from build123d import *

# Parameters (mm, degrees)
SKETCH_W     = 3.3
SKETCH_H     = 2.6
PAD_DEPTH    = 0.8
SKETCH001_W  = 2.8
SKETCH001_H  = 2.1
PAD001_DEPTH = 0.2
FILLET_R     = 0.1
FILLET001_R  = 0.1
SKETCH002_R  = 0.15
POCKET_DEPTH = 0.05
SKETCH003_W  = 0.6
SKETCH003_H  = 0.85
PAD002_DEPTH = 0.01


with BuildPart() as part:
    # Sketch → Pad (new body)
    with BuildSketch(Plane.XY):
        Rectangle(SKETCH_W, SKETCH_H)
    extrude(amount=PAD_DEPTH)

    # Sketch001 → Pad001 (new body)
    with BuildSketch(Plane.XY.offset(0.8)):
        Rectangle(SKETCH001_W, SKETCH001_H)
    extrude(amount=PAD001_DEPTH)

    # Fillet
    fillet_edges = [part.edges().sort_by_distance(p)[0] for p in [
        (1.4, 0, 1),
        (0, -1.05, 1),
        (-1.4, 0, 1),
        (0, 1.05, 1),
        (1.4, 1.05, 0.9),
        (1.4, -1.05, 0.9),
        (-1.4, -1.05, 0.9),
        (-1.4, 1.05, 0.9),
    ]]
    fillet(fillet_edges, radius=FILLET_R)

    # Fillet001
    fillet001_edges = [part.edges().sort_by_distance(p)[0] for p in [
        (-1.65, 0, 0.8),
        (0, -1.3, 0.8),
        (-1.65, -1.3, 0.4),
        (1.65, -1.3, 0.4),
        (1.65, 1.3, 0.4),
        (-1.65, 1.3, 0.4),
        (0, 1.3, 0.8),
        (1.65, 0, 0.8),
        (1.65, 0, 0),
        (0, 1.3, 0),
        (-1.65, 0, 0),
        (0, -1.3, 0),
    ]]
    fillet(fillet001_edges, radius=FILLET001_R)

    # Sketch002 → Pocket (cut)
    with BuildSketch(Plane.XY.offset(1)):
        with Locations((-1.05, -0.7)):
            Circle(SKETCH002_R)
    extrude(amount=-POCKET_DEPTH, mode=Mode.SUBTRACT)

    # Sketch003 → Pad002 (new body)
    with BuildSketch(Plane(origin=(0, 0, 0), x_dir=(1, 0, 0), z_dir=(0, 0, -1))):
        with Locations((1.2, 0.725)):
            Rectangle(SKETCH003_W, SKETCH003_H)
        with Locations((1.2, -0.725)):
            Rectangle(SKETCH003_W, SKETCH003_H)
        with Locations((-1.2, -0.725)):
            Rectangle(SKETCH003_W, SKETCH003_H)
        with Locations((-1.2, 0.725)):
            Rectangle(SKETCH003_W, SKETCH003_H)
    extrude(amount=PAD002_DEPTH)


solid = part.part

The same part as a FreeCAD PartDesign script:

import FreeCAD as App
import Part
import Sketcher


def edges_at(feature, points):
    """Names of the edges that pass closest to the given points."""
    edges = feature.Shape.Edges
    near = lambda p: min(range(len(edges)), key=lambda i: edges[i].distToShape(Part.Vertex(*p))[0])
    return sorted({f"Edge{near(p) + 1}" for p in points})

doc = App.newDocument("Part")
body = doc.addObject("PartDesign::Body", "Body")

# Sketch on XY plane
sketch1 = body.newObject("Sketcher::SketchObject", "Sketch")
sketch1.AttachmentSupport = (doc.getObject("XY_Plane"), [""])
sketch1.MapMode = "FlatFace"
sketch1.addGeometry([
    Part.LineSegment(App.Vector(-1.6, 1.3, 0), App.Vector(-1.6, -1.3, 0)),
    Part.LineSegment(App.Vector(-1.6, -1.3, 0), App.Vector(1.6, -1.3, 0)),
    Part.LineSegment(App.Vector(1.6, -1.3, 0), App.Vector(1.6, 1.3, 0)),
    Part.LineSegment(App.Vector(1.6, 1.3, 0), App.Vector(-1.6, 1.3, 0)),
], False)
sketch1.addConstraint([
    Sketcher.Constraint("Coincident", 0, 2, 1, 1),
    Sketcher.Constraint("Coincident", 1, 2, 2, 1),
    Sketcher.Constraint("Coincident", 2, 2, 3, 1),
    Sketcher.Constraint("Coincident", 3, 2, 0, 1),
    Sketcher.Constraint("Vertical", 0),
    Sketcher.Constraint("Horizontal", 1),
    Sketcher.Constraint("Vertical", 2),
    Sketcher.Constraint("Horizontal", 3),
    Sketcher.Constraint("Symmetric", 0, 2, 2, 2, -1, 1),
    Sketcher.Constraint("DistanceX", 1, 1, 1, 2, 3.3),
    Sketcher.Constraint("DistanceY", 0, 2, 0, 1, 2.6),
])
pad1 = body.newObject("PartDesign::Pad", "Pad")
pad1.Profile = sketch1
pad1.Length = 0.8

# Sketch on XY plane
sketch2 = body.newObject("Sketcher::SketchObject", "Sketch001")
sketch2.AttachmentSupport = (doc.getObject("XY_Plane"), [""])
sketch2.MapMode = "FlatFace"
sketch2.AttachmentOffset = App.Placement(App.Vector(0, 0, 0.8), App.Rotation())
sketch2.addGeometry([
    Part.LineSegment(App.Vector(-1.4, 1.1, 0), App.Vector(-1.4, -1.1, 0)),
    Part.LineSegment(App.Vector(-1.4, -1.1, 0), App.Vector(1.4, -1.1, 0)),
    Part.LineSegment(App.Vector(1.4, -1.1, 0), App.Vector(1.4, 1.1, 0)),
    Part.LineSegment(App.Vector(1.4, 1.1, 0), App.Vector(-1.4, 1.1, 0)),
], False)
sketch2.addConstraint([
    Sketcher.Constraint("Coincident", 0, 2, 1, 1),
    Sketcher.Constraint("Coincident", 1, 2, 2, 1),
    Sketcher.Constraint("Coincident", 2, 2, 3, 1),
    Sketcher.Constraint("Coincident", 3, 2, 0, 1),
    Sketcher.Constraint("Vertical", 0),
    Sketcher.Constraint("Horizontal", 1),
    Sketcher.Constraint("Vertical", 2),
    Sketcher.Constraint("Horizontal", 3),
    Sketcher.Constraint("Symmetric", 0, 2, 2, 2, -1, 1),
    Sketcher.Constraint("DistanceX", 1, 1, 1, 2, 2.8),
    Sketcher.Constraint("DistanceY", 0, 2, 0, 1, 2.1),
])
pad2 = body.newObject("PartDesign::Pad", "Pad001")
pad2.Profile = sketch2
pad2.Length = 0.2
doc.recompute()

fillet = body.newObject("PartDesign::Fillet", "Fillet")
fillet.Base = (pad2, edges_at(pad2, [
    (1.4, 0, 1),
    (0, -1.05, 1),
    (-1.4, 0, 1),
    (0, 1.05, 1),
    (1.4, 1.05, 0.9),
    (1.4, -1.05, 0.9),
    (-1.4, -1.05, 0.9),
    (-1.4, 1.05, 0.9),
]))
fillet.Radius = 0.1
doc.recompute()

fillet2 = body.newObject("PartDesign::Fillet", "Fillet001")
fillet2.Base = (fillet, edges_at(fillet, [
    (-1.65, 0, 0.8),
    (0, -1.3, 0.8),
    (-1.65, -1.3, 0.4),
    (1.65, -1.3, 0.4),
    (1.65, 1.3, 0.4),
    (-1.65, 1.3, 0.4),
    (0, 1.3, 0.8),
    (1.65, 0, 0.8),
    (1.65, 0, 0),
    (0, 1.3, 0),
    (-1.65, 0, 0),
    (0, -1.3, 0),
]))
fillet2.Radius = 0.1

# Sketch on XY plane
sketch3 = body.newObject("Sketcher::SketchObject", "Sketch002")
sketch3.AttachmentSupport = (doc.getObject("XY_Plane"), [""])
sketch3.MapMode = "FlatFace"
sketch3.AttachmentOffset = App.Placement(App.Vector(0, 0, 1), App.Rotation())
sketch3.addGeometry(Part.Circle(App.Vector(-1.05, -0.7, 0), App.Vector(0, 0, 1), 0.15), False)
sketch3.addConstraint([
    Sketcher.Constraint("Diameter", 0, 0.3),
    Sketcher.Constraint("DistanceY", 0, 3, -1, 1, 0.7),
    Sketcher.Constraint("DistanceX", 0, 3, -1, 1, 1.05),
])
pocket1 = body.newObject("PartDesign::Pocket", "Pocket")
pocket1.Profile = sketch3
pocket1.Length = 0.05

# Sketch on XY plane
sketch4 = body.newObject("Sketcher::SketchObject", "Sketch003")
sketch4.AttachmentSupport = (doc.getObject("XY_Plane"), [""])
sketch4.MapMode = "FlatFace"
sketch4.addGeometry([
    Part.LineSegment(App.Vector(0.9, -1.1, 0), App.Vector(0.9, -0.3, 0)),  # 0
    Part.LineSegment(App.Vector(0.9, -0.3, 0), App.Vector(1.5, -0.3, 0)),  # 1
    Part.LineSegment(App.Vector(1.5, -0.3, 0), App.Vector(1.5, -1.1, 0)),  # 2
    Part.LineSegment(App.Vector(1.5, -1.1, 0), App.Vector(0.9, -1.1, 0)),  # 3
    Part.LineSegment(App.Vector(0.9, 0.3, 0), App.Vector(0.9, 1.1, 0)),  # 4
    Part.LineSegment(App.Vector(0.9, 1.1, 0), App.Vector(1.5, 1.1, 0)),  # 5
    Part.LineSegment(App.Vector(1.5, 1.1, 0), App.Vector(1.5, 0.3, 0)),  # 6
    Part.LineSegment(App.Vector(1.5, 0.3, 0), App.Vector(0.9, 0.3, 0)),  # 7
    Part.LineSegment(App.Vector(-1.5, 0.3, 0), App.Vector(-1.5, 1.1, 0)),  # 8
    Part.LineSegment(App.Vector(-1.5, 1.1, 0), App.Vector(-0.9, 1.1, 0)),  # 9
    Part.LineSegment(App.Vector(-0.9, 1.1, 0), App.Vector(-0.9, 0.3, 0)),  # 10
    Part.LineSegment(App.Vector(-0.9, 0.3, 0), App.Vector(-1.5, 0.3, 0)),  # 11
    Part.LineSegment(App.Vector(-1.5, -1.1, 0), App.Vector(-1.5, -0.3, 0)),  # 12
    Part.LineSegment(App.Vector(-1.5, -0.3, 0), App.Vector(-0.9, -0.3, 0)),  # 13
    Part.LineSegment(App.Vector(-0.9, -0.3, 0), App.Vector(-0.9, -1.1, 0)),  # 14
    Part.LineSegment(App.Vector(-0.9, -1.1, 0), App.Vector(-1.5, -1.1, 0)),  # 15
], False)
sketch4.addConstraint([
    Sketcher.Constraint("Coincident", 0, 2, 1, 1),
    Sketcher.Constraint("Coincident", 1, 2, 2, 1),
    Sketcher.Constraint("Coincident", 2, 2, 3, 1),
    Sketcher.Constraint("Coincident", 3, 2, 0, 1),
    Sketcher.Constraint("Coincident", 4, 2, 5, 1),
    Sketcher.Constraint("Coincident", 5, 2, 6, 1),
    Sketcher.Constraint("Coincident", 6, 2, 7, 1),
    Sketcher.Constraint("Coincident", 7, 2, 4, 1),
    Sketcher.Constraint("Coincident", 8, 2, 9, 1),
    Sketcher.Constraint("Coincident", 9, 2, 10, 1),
    Sketcher.Constraint("Coincident", 10, 2, 11, 1),
    Sketcher.Constraint("Coincident", 11, 2, 8, 1),
    Sketcher.Constraint("Coincident", 12, 2, 13, 1),
    Sketcher.Constraint("Coincident", 13, 2, 14, 1),
    Sketcher.Constraint("Coincident", 14, 2, 15, 1),
    Sketcher.Constraint("Coincident", 15, 2, 12, 1),
    Sketcher.Constraint("Vertical", 0),
    Sketcher.Constraint("Horizontal", 1),
    Sketcher.Constraint("Vertical", 2),
    Sketcher.Constraint("Horizontal", 3),
    Sketcher.Constraint("Vertical", 4),
    Sketcher.Constraint("Horizontal", 5),
    Sketcher.Constraint("Vertical", 6),
    Sketcher.Constraint("Horizontal", 7),
    Sketcher.Constraint("Vertical", 8),
    Sketcher.Constraint("Horizontal", 9),
    Sketcher.Constraint("Vertical", 10),
    Sketcher.Constraint("Horizontal", 11),
    Sketcher.Constraint("Vertical", 12),
    Sketcher.Constraint("Horizontal", 13),
    Sketcher.Constraint("Vertical", 14),
    Sketcher.Constraint("Horizontal", 15),
    Sketcher.Constraint("Symmetric", 2, 2, 8, 2, -1, 1),
    Sketcher.Constraint("Symmetric", 0, 2, 10, 2, -1, 1),
    Sketcher.Constraint("Symmetric", 6, 2, 12, 2, -1, 1),
    Sketcher.Constraint("Symmetric", 4, 2, 14, 2, -1, 1),
    Sketcher.Constraint("Symmetric", 5, 2, 8, 2, -2),
    Sketcher.Constraint("Symmetric", 7, 2, 10, 2, -2),
    Sketcher.Constraint("DistanceX", 1, 1, 1, 2, 0.6),
    Sketcher.Constraint("DistanceX", 8, 2, 5, 2, 3.0),
    Sketcher.Constraint("DistanceY", 0, 1, 0, 2, 0.85),
    Sketcher.Constraint("DistanceY", 0, 2, -1, 1, 0.3),
])
pad3 = body.newObject("PartDesign::Pad", "Pad002")
pad3.Profile = sketch4
pad3.Length = 0.01
pad3.Reversed = True

doc.recompute()
